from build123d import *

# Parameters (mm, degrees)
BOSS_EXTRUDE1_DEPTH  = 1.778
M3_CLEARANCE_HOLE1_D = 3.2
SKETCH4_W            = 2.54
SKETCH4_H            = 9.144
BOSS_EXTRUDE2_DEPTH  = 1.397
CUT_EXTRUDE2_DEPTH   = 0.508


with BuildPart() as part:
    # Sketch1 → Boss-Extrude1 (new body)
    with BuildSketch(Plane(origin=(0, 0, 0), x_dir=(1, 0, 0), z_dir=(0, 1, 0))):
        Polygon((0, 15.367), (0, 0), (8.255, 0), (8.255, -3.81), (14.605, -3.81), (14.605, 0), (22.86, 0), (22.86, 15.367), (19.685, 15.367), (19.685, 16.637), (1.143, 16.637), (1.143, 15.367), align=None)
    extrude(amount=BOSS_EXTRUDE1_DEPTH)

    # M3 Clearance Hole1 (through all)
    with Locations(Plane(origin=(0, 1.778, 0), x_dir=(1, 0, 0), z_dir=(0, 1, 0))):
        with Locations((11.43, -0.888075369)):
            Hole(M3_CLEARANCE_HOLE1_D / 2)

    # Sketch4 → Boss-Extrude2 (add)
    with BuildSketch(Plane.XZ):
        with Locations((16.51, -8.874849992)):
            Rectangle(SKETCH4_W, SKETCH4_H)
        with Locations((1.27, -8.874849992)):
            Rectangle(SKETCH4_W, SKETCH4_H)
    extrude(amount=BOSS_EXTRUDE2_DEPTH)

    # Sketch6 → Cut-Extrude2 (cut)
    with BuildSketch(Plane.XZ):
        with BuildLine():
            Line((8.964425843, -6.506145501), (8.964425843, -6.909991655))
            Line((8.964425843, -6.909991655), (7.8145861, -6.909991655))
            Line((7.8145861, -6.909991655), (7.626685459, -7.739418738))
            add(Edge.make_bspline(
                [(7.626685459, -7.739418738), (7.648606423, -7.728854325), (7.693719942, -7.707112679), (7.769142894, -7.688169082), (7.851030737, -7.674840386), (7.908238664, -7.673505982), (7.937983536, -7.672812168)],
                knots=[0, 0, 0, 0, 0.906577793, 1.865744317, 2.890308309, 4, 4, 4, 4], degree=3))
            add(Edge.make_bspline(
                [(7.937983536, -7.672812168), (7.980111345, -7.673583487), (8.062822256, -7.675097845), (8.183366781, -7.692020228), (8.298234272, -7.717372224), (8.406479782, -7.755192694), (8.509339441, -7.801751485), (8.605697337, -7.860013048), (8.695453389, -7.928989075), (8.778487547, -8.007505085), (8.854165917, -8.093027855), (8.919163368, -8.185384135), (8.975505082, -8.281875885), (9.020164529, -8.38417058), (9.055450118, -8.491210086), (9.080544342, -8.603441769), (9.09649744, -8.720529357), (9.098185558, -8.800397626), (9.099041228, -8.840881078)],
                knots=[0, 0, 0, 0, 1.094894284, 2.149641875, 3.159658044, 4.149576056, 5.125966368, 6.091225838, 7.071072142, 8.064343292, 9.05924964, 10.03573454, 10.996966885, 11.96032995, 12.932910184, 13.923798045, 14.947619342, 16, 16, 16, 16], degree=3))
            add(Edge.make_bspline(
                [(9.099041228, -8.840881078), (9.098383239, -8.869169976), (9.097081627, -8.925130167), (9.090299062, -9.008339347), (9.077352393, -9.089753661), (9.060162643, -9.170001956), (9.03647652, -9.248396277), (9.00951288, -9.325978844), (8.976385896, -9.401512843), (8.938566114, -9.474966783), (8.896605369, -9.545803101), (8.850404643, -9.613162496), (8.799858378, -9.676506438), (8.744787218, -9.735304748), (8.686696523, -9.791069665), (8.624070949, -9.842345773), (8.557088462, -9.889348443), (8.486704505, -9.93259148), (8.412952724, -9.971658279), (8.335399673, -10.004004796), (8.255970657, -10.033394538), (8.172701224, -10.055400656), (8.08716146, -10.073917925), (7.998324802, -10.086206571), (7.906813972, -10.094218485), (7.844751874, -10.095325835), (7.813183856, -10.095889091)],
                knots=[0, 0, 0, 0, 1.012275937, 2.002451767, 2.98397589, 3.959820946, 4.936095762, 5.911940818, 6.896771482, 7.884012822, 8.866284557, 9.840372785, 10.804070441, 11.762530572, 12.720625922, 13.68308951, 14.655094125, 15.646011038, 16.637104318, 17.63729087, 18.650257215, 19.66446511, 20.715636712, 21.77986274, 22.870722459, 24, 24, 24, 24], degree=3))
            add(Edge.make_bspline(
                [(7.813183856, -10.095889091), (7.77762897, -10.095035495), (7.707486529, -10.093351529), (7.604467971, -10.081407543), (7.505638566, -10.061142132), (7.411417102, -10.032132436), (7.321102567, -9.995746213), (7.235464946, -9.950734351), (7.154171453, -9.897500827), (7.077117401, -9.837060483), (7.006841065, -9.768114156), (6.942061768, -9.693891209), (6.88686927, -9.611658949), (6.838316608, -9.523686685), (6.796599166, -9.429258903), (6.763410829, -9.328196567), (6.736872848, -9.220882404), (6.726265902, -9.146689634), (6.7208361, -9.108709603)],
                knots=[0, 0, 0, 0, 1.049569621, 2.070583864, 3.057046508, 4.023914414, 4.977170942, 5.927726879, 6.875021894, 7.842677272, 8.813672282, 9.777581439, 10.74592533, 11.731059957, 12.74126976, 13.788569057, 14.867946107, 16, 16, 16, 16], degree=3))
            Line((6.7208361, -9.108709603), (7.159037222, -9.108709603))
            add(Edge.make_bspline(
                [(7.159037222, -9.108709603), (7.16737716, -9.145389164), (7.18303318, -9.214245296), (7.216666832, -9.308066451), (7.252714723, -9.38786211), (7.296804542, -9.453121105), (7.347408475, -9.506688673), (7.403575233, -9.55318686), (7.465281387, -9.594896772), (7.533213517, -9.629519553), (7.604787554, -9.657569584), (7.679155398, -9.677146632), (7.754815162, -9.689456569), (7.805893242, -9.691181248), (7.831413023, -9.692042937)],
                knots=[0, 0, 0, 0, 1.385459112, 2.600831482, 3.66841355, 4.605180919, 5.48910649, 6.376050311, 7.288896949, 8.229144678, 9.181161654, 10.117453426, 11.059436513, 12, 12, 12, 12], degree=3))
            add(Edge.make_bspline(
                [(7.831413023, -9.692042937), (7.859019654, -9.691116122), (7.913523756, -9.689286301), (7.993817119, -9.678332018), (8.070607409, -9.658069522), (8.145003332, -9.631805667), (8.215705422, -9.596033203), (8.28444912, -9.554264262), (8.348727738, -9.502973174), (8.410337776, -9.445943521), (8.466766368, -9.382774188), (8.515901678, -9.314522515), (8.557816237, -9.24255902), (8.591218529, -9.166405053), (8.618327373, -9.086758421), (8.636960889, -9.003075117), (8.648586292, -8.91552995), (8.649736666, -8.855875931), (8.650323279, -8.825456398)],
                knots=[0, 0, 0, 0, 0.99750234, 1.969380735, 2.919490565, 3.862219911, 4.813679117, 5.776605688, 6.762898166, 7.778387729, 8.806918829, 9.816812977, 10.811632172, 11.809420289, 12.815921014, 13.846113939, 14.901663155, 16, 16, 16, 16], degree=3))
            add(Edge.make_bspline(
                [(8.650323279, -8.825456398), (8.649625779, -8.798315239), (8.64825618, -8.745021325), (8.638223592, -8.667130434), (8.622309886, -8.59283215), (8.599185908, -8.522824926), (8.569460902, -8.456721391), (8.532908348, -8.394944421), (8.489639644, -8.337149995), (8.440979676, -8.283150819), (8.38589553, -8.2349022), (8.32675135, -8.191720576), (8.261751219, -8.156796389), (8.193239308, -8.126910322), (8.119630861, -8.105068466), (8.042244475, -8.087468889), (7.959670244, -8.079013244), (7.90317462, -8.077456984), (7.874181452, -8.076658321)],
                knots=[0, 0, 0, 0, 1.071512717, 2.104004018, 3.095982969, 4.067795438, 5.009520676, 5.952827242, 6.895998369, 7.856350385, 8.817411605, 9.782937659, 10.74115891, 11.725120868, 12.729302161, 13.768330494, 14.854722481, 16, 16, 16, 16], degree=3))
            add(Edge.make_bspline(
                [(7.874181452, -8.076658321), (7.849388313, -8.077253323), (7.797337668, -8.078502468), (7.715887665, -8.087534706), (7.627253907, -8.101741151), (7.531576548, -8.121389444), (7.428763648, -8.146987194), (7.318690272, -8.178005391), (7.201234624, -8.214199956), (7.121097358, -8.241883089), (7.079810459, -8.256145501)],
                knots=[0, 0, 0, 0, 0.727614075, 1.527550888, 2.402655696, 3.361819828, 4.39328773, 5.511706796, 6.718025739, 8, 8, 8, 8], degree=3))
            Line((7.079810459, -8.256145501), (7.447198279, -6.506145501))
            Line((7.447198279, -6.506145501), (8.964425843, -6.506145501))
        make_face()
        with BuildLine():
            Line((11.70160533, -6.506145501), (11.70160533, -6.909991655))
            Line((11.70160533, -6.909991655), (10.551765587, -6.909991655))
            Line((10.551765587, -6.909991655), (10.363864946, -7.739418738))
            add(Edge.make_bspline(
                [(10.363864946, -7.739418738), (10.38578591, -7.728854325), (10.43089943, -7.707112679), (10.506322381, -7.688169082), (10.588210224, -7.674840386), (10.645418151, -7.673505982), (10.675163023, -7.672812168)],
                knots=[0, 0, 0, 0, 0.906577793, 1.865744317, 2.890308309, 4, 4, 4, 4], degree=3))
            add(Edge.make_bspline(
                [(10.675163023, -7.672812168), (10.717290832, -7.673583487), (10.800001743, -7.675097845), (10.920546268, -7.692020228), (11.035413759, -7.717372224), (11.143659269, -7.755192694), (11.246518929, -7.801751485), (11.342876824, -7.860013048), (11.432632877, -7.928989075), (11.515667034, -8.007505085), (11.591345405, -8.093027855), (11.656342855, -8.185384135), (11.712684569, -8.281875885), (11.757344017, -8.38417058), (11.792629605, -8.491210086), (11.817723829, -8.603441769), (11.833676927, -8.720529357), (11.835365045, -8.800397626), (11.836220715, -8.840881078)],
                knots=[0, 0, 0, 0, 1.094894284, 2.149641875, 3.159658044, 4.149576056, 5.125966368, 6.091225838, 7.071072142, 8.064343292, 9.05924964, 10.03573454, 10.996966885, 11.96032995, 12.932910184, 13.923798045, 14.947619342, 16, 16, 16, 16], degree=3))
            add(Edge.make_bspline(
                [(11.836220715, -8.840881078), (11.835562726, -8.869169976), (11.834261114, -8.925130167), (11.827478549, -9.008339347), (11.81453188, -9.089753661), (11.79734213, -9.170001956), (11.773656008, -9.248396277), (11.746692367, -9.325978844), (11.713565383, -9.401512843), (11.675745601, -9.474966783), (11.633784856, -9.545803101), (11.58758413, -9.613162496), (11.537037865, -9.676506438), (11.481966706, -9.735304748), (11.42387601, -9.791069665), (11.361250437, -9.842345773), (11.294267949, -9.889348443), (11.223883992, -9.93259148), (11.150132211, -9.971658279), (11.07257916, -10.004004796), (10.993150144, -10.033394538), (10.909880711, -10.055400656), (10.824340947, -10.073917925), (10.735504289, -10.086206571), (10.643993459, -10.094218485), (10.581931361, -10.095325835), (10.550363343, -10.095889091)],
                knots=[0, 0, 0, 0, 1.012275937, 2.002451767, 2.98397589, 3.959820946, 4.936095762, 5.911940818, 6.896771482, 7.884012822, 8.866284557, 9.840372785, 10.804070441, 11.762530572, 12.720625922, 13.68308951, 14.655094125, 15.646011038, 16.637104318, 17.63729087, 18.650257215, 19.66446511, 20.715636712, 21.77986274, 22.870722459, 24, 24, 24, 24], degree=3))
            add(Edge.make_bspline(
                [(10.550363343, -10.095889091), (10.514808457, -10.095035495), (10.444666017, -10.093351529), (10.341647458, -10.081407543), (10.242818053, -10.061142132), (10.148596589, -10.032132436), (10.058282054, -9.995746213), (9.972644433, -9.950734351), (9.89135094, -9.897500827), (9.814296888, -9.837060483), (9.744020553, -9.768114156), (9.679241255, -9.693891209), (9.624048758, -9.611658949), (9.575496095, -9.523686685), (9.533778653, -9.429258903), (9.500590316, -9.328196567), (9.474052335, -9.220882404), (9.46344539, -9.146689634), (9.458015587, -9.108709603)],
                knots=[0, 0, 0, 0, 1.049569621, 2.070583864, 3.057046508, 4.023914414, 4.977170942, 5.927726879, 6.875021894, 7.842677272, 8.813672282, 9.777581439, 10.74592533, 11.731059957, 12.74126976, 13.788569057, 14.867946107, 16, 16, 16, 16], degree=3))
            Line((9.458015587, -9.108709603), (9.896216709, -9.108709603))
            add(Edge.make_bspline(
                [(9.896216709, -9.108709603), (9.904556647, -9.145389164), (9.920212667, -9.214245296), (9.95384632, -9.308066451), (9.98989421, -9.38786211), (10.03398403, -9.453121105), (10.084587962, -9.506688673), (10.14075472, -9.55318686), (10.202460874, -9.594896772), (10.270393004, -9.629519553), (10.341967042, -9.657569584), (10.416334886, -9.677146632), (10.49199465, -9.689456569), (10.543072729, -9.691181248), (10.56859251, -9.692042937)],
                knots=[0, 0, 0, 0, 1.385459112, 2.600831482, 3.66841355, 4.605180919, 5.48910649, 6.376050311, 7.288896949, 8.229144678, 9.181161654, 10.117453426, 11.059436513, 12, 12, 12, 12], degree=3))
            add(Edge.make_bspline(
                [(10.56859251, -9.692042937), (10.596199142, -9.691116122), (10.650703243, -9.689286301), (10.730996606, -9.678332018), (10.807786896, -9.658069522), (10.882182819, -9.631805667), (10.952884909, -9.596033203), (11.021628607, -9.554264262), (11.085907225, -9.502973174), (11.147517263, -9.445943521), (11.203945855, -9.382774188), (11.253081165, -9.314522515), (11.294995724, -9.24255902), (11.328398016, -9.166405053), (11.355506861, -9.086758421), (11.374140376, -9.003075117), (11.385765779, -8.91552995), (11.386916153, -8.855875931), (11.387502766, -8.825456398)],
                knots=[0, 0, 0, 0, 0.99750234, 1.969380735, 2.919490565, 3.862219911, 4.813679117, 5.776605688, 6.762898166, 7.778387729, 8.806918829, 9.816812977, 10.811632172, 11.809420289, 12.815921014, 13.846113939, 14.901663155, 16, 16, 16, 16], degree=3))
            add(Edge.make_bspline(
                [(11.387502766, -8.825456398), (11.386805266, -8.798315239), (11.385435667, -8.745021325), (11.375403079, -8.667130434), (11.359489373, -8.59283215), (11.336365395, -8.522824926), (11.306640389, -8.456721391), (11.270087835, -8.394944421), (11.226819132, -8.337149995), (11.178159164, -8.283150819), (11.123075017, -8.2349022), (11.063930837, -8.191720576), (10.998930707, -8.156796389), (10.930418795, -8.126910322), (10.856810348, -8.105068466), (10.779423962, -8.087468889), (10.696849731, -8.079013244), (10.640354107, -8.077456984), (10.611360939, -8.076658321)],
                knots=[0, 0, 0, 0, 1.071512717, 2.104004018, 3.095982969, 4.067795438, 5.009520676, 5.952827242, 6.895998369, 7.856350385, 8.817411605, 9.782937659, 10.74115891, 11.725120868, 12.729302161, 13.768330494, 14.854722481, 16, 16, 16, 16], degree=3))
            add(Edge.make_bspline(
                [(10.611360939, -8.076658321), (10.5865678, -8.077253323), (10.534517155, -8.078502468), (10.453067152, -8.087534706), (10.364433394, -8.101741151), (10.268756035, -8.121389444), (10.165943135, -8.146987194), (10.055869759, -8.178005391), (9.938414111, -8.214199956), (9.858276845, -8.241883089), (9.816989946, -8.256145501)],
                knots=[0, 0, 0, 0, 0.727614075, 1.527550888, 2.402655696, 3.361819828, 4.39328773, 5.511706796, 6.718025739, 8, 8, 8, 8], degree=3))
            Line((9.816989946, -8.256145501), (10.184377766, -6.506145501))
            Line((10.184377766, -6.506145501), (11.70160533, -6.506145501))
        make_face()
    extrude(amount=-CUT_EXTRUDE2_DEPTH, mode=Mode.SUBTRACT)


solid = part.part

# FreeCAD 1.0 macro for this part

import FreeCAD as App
import Part
import Sketcher
Q = App.Units.Quantity


def add_polygon(sketch, points):
    """Adds a closed chain of lines whose ends are joined by coincident constraints."""
    first, n = sketch.GeometryCount, len(points)
    for a, b in zip(points, points[1:] + points[:1]):
        sketch.addGeometry(Part.LineSegment(App.Vector(*a, 0), App.Vector(*b, 0)), False)
    for i in range(n):
        sketch.addConstraint(Sketcher.Constraint("Coincident", first + i, 2, first + (i + 1) % n, 1))

doc = App.newDocument("Part")
body = doc.addObject("PartDesign::Body", "Body")

sketch1 = body.newObject("Sketcher::SketchObject", "Sketch")
sketch1.AttachmentSupport = (doc.getObject("XZ_Plane"), [""])
sketch1.MapMode = "FlatFace"
add_polygon(sketch1, [(0, -15.4), (0, 0), (8.3, 0), (8.3, 3.8), (14.6, 3.8), (14.6, 0), (22.9, 0), (22.9, -15.4), (19.7, -15.4), (19.7, -16.6), (1.1, -16.6), (1.1, -15.4)])
sketch1.addConstraint([
    Sketcher.Constraint("Vertical", 0),
    Sketcher.Constraint("Horizontal", 1),
    Sketcher.Constraint("Vertical", 2),
    Sketcher.Constraint("Horizontal", 3),
    Sketcher.Constraint("Vertical", 4),
    Sketcher.Constraint("Horizontal", 5),
    Sketcher.Constraint("Vertical", 6),
    Sketcher.Constraint("Horizontal", 7),
    Sketcher.Constraint("Vertical", 8),
    Sketcher.Constraint("Horizontal", 9),
    Sketcher.Constraint("Vertical", 10),
    Sketcher.Constraint("Horizontal", 11),
    Sketcher.Constraint("Coincident", 0, 2, -1, 1),
    Sketcher.Constraint("PointOnObject", 4, 2, -1),
    Sketcher.Constraint("Horizontal", 7, 2, 10, 2),
    Sketcher.Constraint("Equal", 1, 5),
    Sketcher.Constraint("DistanceX", 3, 1, 3, 2, Q("0.25 in")),
    Sketcher.Constraint("DistanceX", 9, 2, 9, 1, Q("0.73 in")),
    Sketcher.Constraint("DistanceY", 2, 1, 2, 2, Q("0.15 in")),
    Sketcher.Constraint("DistanceY", 8, 2, 8, 1, Q("0.05 in")),
    Sketcher.Constraint("DistanceX", -1, 1, 5, 2, Q("0.9 in")),
    Sketcher.Constraint("DistanceX", 4, 2, 7, 2, Q("0.2 in")),
    Sketcher.Constraint("DistanceY", 0, 1, 0, 2, Q("0.605 in")),
])
pad1 = body.newObject("PartDesign::Pad", "Pad")
pad1.Profile = sketch1
pad1.Length = Q("0.07 in")
pad1.Reversed = True

sketch2 = body.newObject("Sketcher::SketchObject", "Sketch001")
sketch2.AttachmentSupport = (doc.getObject("XZ_Plane"), [""])
sketch2.MapMode = "FlatFace"
sketch2.AttachmentOffset = App.Placement(App.Vector(0, 0, -0.07 * 25.4), App.Rotation())
sketch2.addGeometry(Part.Circle(App.Vector(11.4, 0.9, 0), App.Vector(0, 0, 1), 1.6), False)
sketch2.addConstraint([
    Sketcher.Constraint("Diameter", 0, 3.2),
    Sketcher.Constraint("DistanceX", -1, 1, 0, 3, Q("0.45 in")),
    Sketcher.Constraint("DistanceY", -1, 1, 0, 3, 0.888075),
])
doc.recompute()
hole = body.newObject("PartDesign::Hole", "Hole")
hole.Profile = sketch2
hole.ThreadType = "None"
hole.Diameter = 3.2
hole.DepthType = "ThroughAll"
hole.Reversed = True

sketch3 = body.newObject("Sketcher::SketchObject", "Sketch002")
sketch3.AttachmentSupport = (doc.getObject("XZ_Plane"), [""])
sketch3.MapMode = "FlatFace"
add_polygon(sketch3, [(15.2, -4.3), (15.2, -13.4), (17.8, -13.4), (17.8, -4.3)])
add_polygon(sketch3, [(0, -4.3), (0, -13.4), (2.5, -13.4), (2.5, -4.3)])
sketch3.addConstraint([
    Sketcher.Constraint("Vertical", 0),
    Sketcher.Constraint("Horizontal", 1),
    Sketcher.Constraint("Vertical", 2),
    Sketcher.Constraint("Horizontal", 3),
    Sketcher.Constraint("Vertical", 4),
    Sketcher.Constraint("Horizontal", 5),
    Sketcher.Constraint("Vertical", 6),
    Sketcher.Constraint("Horizontal", 7),
    Sketcher.Constraint("PointOnObject", 4, 2, -2),
    Sketcher.Constraint("Horizontal", 1, 2, 4, 2),
    Sketcher.Constraint("Horizontal", 3, 2, 6, 2),
    Sketcher.Constraint("Equal", 3, 5),
    Sketcher.Constraint("DistanceX", 1, 1, 1, 2, Q("0.1 in")),
    Sketcher.Constraint("DistanceY", 0, 2, 0, 1, Q("0.36 in")),
    Sketcher.Constraint("DistanceX", -1, 1, 0, 2, Q("0.6 in")),
    Sketcher.Constraint("DistanceY", 0, 2, -1, 1, 13.44685),
])
pad2 = body.newObject("PartDesign::Pad", "Pad001")
pad2.Profile = sketch3
pad2.Length = Q("0.055 in")

sketch4 = body.newObject("Sketcher::SketchObject", "Sketch003")
sketch4.AttachmentSupport = (doc.getObject("XZ_Plane"), [""])
sketch4.MapMode = "FlatFace"
sketch4.addGeometry([
    Part.LineSegment(App.Vector(8.964426, -6.909992, 0), App.Vector(8.964426, -6.506146, 0)),
    Part.LineSegment(App.Vector(8.964426, -6.506146, 0), App.Vector(7.447198, -6.506146, 0)),
    Part.LineSegment(App.Vector(7.447198, -6.506146, 0), App.Vector(7.07981, -8.256146, 0)),
    Part.BSplineCurve([App.Vector(7.874181, -8.076658, 0), App.Vector(7.849388, -8.077253, 0), App.Vector(7.797338, -8.078502, 0), App.Vector(7.715888, -8.087535, 0), App.Vector(7.627254, -8.101741, 0), App.Vector(7.531577, -8.121389, 0), App.Vector(7.428764, -8.146987, 0), App.Vector(7.31869, -8.178005, 0), App.Vector(7.201235, -8.2142, 0), App.Vector(7.121097, -8.241883, 0), App.Vector(7.07981, -8.256146, 0)], [4, 1, 1, 1, 1, 1, 1, 1, 4], [0, 0.727614075, 1.527550888, 2.402655696, 3.361819828, 4.39328773, 5.511706796, 6.718025739, 8], False, 3, [1, 1, 1, 1, 1, 1, 1, 1, 1, 1, 1], False),
    Part.BSplineCurve([App.Vector(8.650323, -8.825456, 0), App.Vector(8.649626, -8.798315, 0), App.Vector(8.648256, -8.745021, 0), App.Vector(8.638224, -8.66713, 0), App.Vector(8.62231, -8.592832, 0), App.Vector(8.599186, -8.522825, 0), App.Vector(8.569461, -8.456721, 0), App.Vector(8.532908, -8.394944, 0), App.Vector(8.48964, -8.33715, 0), App.Vector(8.44098, -8.283151, 0), App.Vector(8.385896, -8.234902, 0), App.Vector(8.326751, -8.191721, 0), App.Vector(8.261751, -8.156796, 0), App.Vector(8.193239, -8.12691, 0), App.Vector(8.119631, -8.105068, 0), App.Vector(8.042244, -8.087469, 0), App.Vector(7.95967, -8.079013, 0), App.Vector(7.903175, -8.077457, 0), App.Vector(7.874181, -8.076658, 0)], [4, 1, 1, 1, 1, 1, 1, 1, 1, 1, 1, 1, 1, 1, 1, 1, 4], [0, 1.071512717, 2.104004018, 3.095982969, 4.067795438, 5.009520676, 5.952827242, 6.895998369, 7.856350385, 8.817411605, 9.782937659, 10.74115891, 11.725120868, 12.729302161, 13.768330494, 14.854722481, 16], False, 3, [1, 1, 1, 1, 1, 1, 1, 1, 1, 1, 1, 1, 1, 1, 1, 1, 1, 1, 1], False),
    Part.BSplineCurve([App.Vector(7.831413, -9.692043, 0), App.Vector(7.85902, -9.691116, 0), App.Vector(7.913524, -9.689286, 0), App.Vector(7.993817, -9.678332, 0), App.Vector(8.070607, -9.65807, 0), App.Vector(8.145003, -9.631806, 0), App.Vector(8.215705, -9.596033, 0), App.Vector(8.284449, -9.554264, 0), App.Vector(8.348728, -9.502973, 0), App.Vector(8.410338, -9.445944, 0), App.Vector(8.466766, -9.382774, 0), App.Vector(8.515902, -9.314523, 0), App.Vector(8.557816, -9.242559, 0), App.Vector(8.591219, -9.166405, 0), App.Vector(8.618327, -9.086758, 0), App.Vector(8.636961, -9.003075, 0), App.Vector(8.648586, -8.91553, 0), App.Vector(8.649737, -8.855876, 0), App.Vector(8.650323, -8.825456, 0)], [4, 1, 1, 1, 1, 1, 1, 1, 1, 1, 1, 1, 1, 1, 1, 1, 4], [0, 0.99750234, 1.969380735, 2.919490565, 3.862219911, 4.813679117, 5.776605688, 6.762898166, 7.778387729, 8.806918829, 9.816812977, 10.811632172, 11.809420289, 12.815921014, 13.846113939, 14.901663155, 16], False, 3, [1, 1, 1, 1, 1, 1, 1, 1, 1, 1, 1, 1, 1, 1, 1, 1, 1, 1, 1], False),
    Part.BSplineCurve([App.Vector(7.159037, -9.10871, 0), App.Vector(7.167377, -9.145389, 0), App.Vector(7.183033, -9.214245, 0), App.Vector(7.216667, -9.308066, 0), App.Vector(7.252715, -9.387862, 0), App.Vector(7.296805, -9.453121, 0), App.Vector(7.347408, -9.506689, 0), App.Vector(7.403575, -9.553187, 0), App.Vector(7.465281, -9.594897, 0), App.Vector(7.533214, -9.62952, 0), App.Vector(7.604788, -9.65757, 0), App.Vector(7.679155, -9.677147, 0), App.Vector(7.754815, -9.689457, 0), App.Vector(7.805893, -9.691181, 0), App.Vector(7.831413, -9.692043, 0)], [4, 1, 1, 1, 1, 1, 1, 1, 1, 1, 1, 1, 4], [0, 1.385459112, 2.600831482, 3.66841355, 4.605180919, 5.48910649, 6.376050311, 7.288896949, 8.229144678, 9.181161654, 10.117453426, 11.059436513, 12], False, 3, [1, 1, 1, 1, 1, 1, 1, 1, 1, 1, 1, 1, 1, 1, 1], False),
    Part.LineSegment(App.Vector(7.159037, -9.10871, 0), App.Vector(6.720836, -9.10871, 0)),
    Part.BSplineCurve([App.Vector(7.813184, -10.095889, 0), App.Vector(7.777629, -10.095035, 0), App.Vector(7.707487, -10.093352, 0), App.Vector(7.604468, -10.081408, 0), App.Vector(7.505639, -10.061142, 0), App.Vector(7.411417, -10.032132, 0), App.Vector(7.321103, -9.995746, 0), App.Vector(7.235465, -9.950734, 0), App.Vector(7.154171, -9.897501, 0), App.Vector(7.077117, -9.83706, 0), App.Vector(7.006841, -9.768114, 0), App.Vector(6.942062, -9.693891, 0), App.Vector(6.886869, -9.611659, 0), App.Vector(6.838317, -9.523687, 0), App.Vector(6.796599, -9.429259, 0), App.Vector(6.763411, -9.328197, 0), App.Vector(6.736873, -9.220882, 0), App.Vector(6.726266, -9.14669, 0), App.Vector(6.720836, -9.10871, 0)], [4, 1, 1, 1, 1, 1, 1, 1, 1, 1, 1, 1, 1, 1, 1, 1, 4], [0, 1.049569621, 2.070583864, 3.057046508, 4.023914414, 4.977170942, 5.927726879, 6.875021894, 7.842677272, 8.813672282, 9.777581439, 10.74592533, 11.731059957, 12.74126976, 13.788569057, 14.867946107, 16], False, 3, [1, 1, 1, 1, 1, 1, 1, 1, 1, 1, 1, 1, 1, 1, 1, 1, 1, 1, 1], False),
    Part.BSplineCurve([App.Vector(9.099041, -8.840881, 0), App.Vector(9.098383, -8.86917, 0), App.Vector(9.097082, -8.92513, 0), App.Vector(9.090299, -9.008339, 0), App.Vector(9.077352, -9.089754, 0), App.Vector(9.060163, -9.170002, 0), App.Vector(9.036477, -9.248396, 0), App.Vector(9.009513, -9.325979, 0), App.Vector(8.976386, -9.401513, 0), App.Vector(8.938566, -9.474967, 0), App.Vector(8.896605, -9.545803, 0), App.Vector(8.850405, -9.613162, 0), App.Vector(8.799858, -9.676506, 0), App.Vector(8.744787, -9.735305, 0), App.Vector(8.686697, -9.79107, 0), App.Vector(8.624071, -9.842346, 0), App.Vector(8.557088, -9.889348, 0), App.Vector(8.486705, -9.932591, 0), App.Vector(8.412953, -9.971658, 0), App.Vector(8.3354, -10.004005, 0), App.Vector(8.255971, -10.033395, 0), App.Vector(8.172701, -10.055401, 0), App.Vector(8.087161, -10.073918, 0), App.Vector(7.998325, -10.086207, 0), App.Vector(7.906814, -10.094218, 0), App.Vector(7.844752, -10.095326, 0), App.Vector(7.813184, -10.095889, 0)], [4, 1, 1, 1, 1, 1, 1, 1, 1, 1, 1, 1, 1, 1, 1, 1, 1, 1, 1, 1, 1, 1, 1, 1, 4], [0, 1.012275937, 2.002451767, 2.98397589, 3.959820946, 4.936095762, 5.911940818, 6.896771482, 7.884012822, 8.866284557, 9.840372785, 10.804070441, 11.762530572, 12.720625922, 13.68308951, 14.655094125, 15.646011038, 16.637104318, 17.63729087, 18.650257215, 19.66446511, 20.715636712, 21.77986274, 22.870722459, 24], False, 3, [1, 1, 1, 1, 1, 1, 1, 1, 1, 1, 1, 1, 1, 1, 1, 1, 1, 1, 1, 1, 1, 1, 1, 1, 1, 1, 1], False),
    Part.BSplineCurve([App.Vector(7.937984, -7.672812, 0), App.Vector(7.980111, -7.673583, 0), App.Vector(8.062822, -7.675098, 0), App.Vector(8.183367, -7.69202, 0), App.Vector(8.298234, -7.717372, 0), App.Vector(8.40648, -7.755193, 0), App.Vector(8.509339, -7.801751, 0), App.Vector(8.605697, -7.860013, 0), App.Vector(8.695453, -7.928989, 0), App.Vector(8.778488, -8.007505, 0), App.Vector(8.854166, -8.093028, 0), App.Vector(8.919163, -8.185384, 0), App.Vector(8.975505, -8.281876, 0), App.Vector(9.020165, -8.384171, 0), App.Vector(9.05545, -8.49121, 0), App.Vector(9.080544, -8.603442, 0), App.Vector(9.096497, -8.720529, 0), App.Vector(9.098186, -8.800398, 0), App.Vector(9.099041, -8.840881, 0)], [4, 1, 1, 1, 1, 1, 1, 1, 1, 1, 1, 1, 1, 1, 1, 1, 4], [0, 1.094894284, 2.149641875, 3.159658044, 4.149576056, 5.125966368, 6.091225838, 7.071072142, 8.064343292, 9.05924964, 10.03573454, 10.996966885, 11.96032995, 12.932910184, 13.923798045, 14.947619342, 16], False, 3, [1, 1, 1, 1, 1, 1, 1, 1, 1, 1, 1, 1, 1, 1, 1, 1, 1, 1, 1], False),
    Part.BSplineCurve([App.Vector(7.626685, -7.739419, 0), App.Vector(7.648606, -7.728854, 0), App.Vector(7.69372, -7.707113, 0), App.Vector(7.769143, -7.688169, 0), App.Vector(7.851031, -7.67484, 0), App.Vector(7.908239, -7.673506, 0), App.Vector(7.937984, -7.672812, 0)], [4, 1, 1, 1, 4], [0, 0.906577793, 1.865744317, 2.890308309, 4], False, 3, [1, 1, 1, 1, 1, 1, 1], False),
    Part.LineSegment(App.Vector(7.626685, -7.739419, 0), App.Vector(7.814586, -6.909992, 0)),
    Part.LineSegment(App.Vector(7.814586, -6.909992, 0), App.Vector(8.964426, -6.909992, 0)),
    Part.LineSegment(App.Vector(11.701605, -6.909992, 0), App.Vector(11.701605, -6.506146, 0)),
    Part.LineSegment(App.Vector(11.701605, -6.506146, 0), App.Vector(10.184378, -6.506146, 0)),
    Part.LineSegment(App.Vector(10.184378, -6.506146, 0), App.Vector(9.81699, -8.256146, 0)),
    Part.BSplineCurve([App.Vector(10.611361, -8.076658, 0), App.Vector(10.586568, -8.077253, 0), App.Vector(10.534517, -8.078502, 0), App.Vector(10.453067, -8.087535, 0), App.Vector(10.364433, -8.101741, 0), App.Vector(10.268756, -8.121389, 0), App.Vector(10.165943, -8.146987, 0), App.Vector(10.05587, -8.178005, 0), App.Vector(9.938414, -8.2142, 0), App.Vector(9.858277, -8.241883, 0), App.Vector(9.81699, -8.256146, 0)], [4, 1, 1, 1, 1, 1, 1, 1, 4], [0, 0.727614075, 1.527550888, 2.402655696, 3.361819828, 4.39328773, 5.511706796, 6.718025739, 8], False, 3, [1, 1, 1, 1, 1, 1, 1, 1, 1, 1, 1], False),
    Part.BSplineCurve([App.Vector(11.387503, -8.825456, 0), App.Vector(11.386805, -8.798315, 0), App.Vector(11.385436, -8.745021, 0), App.Vector(11.375403, -8.66713, 0), App.Vector(11.359489, -8.592832, 0), App.Vector(11.336365, -8.522825, 0), App.Vector(11.30664, -8.456721, 0), App.Vector(11.270088, -8.394944, 0), App.Vector(11.226819, -8.33715, 0), App.Vector(11.178159, -8.283151, 0), App.Vector(11.123075, -8.234902, 0), App.Vector(11.063931, -8.191721, 0), App.Vector(10.998931, -8.156796, 0), App.Vector(10.930419, -8.12691, 0), App.Vector(10.85681, -8.105068, 0), App.Vector(10.779424, -8.087469, 0), App.Vector(10.69685, -8.079013, 0), App.Vector(10.640354, -8.077457, 0), App.Vector(10.611361, -8.076658, 0)], [4, 1, 1, 1, 1, 1, 1, 1, 1, 1, 1, 1, 1, 1, 1, 1, 4], [0, 1.071512717, 2.104004018, 3.095982969, 4.067795438, 5.009520676, 5.952827242, 6.895998369, 7.856350385, 8.817411605, 9.782937659, 10.74115891, 11.725120868, 12.729302161, 13.768330494, 14.854722481, 16], False, 3, [1, 1, 1, 1, 1, 1, 1, 1, 1, 1, 1, 1, 1, 1, 1, 1, 1, 1, 1], False),
    Part.BSplineCurve([App.Vector(10.568593, -9.692043, 0), App.Vector(10.596199, -9.691116, 0), App.Vector(10.650703, -9.689286, 0), App.Vector(10.730997, -9.678332, 0), App.Vector(10.807787, -9.65807, 0), App.Vector(10.882183, -9.631806, 0), App.Vector(10.952885, -9.596033, 0), App.Vector(11.021629, -9.554264, 0), App.Vector(11.085907, -9.502973, 0), App.Vector(11.147517, -9.445944, 0), App.Vector(11.203946, -9.382774, 0), App.Vector(11.253081, -9.314523, 0), App.Vector(11.294996, -9.242559, 0), App.Vector(11.328398, -9.166405, 0), App.Vector(11.355507, -9.086758, 0), App.Vector(11.37414, -9.003075, 0), App.Vector(11.385766, -8.91553, 0), App.Vector(11.386916, -8.855876, 0), App.Vector(11.387503, -8.825456, 0)], [4, 1, 1, 1, 1, 1, 1, 1, 1, 1, 1, 1, 1, 1, 1, 1, 4], [0, 0.99750234, 1.969380735, 2.919490565, 3.862219911, 4.813679117, 5.776605688, 6.762898166, 7.778387729, 8.806918829, 9.816812977, 10.811632172, 11.809420289, 12.815921014, 13.846113939, 14.901663155, 16], False, 3, [1, 1, 1, 1, 1, 1, 1, 1, 1, 1, 1, 1, 1, 1, 1, 1, 1, 1, 1], False),
    Part.BSplineCurve([App.Vector(9.896217, -9.10871, 0), App.Vector(9.904557, -9.145389, 0), App.Vector(9.920213, -9.214245, 0), App.Vector(9.953846, -9.308066, 0), App.Vector(9.989894, -9.387862, 0), App.Vector(10.033984, -9.453121, 0), App.Vector(10.084588, -9.506689, 0), App.Vector(10.140755, -9.553187, 0), App.Vector(10.202461, -9.594897, 0), App.Vector(10.270393, -9.62952, 0), App.Vector(10.341967, -9.65757, 0), App.Vector(10.416335, -9.677147, 0), App.Vector(10.491995, -9.689457, 0), App.Vector(10.543073, -9.691181, 0), App.Vector(10.568593, -9.692043, 0)], [4, 1, 1, 1, 1, 1, 1, 1, 1, 1, 1, 1, 4], [0, 1.385459112, 2.600831482, 3.66841355, 4.605180919, 5.48910649, 6.376050311, 7.288896949, 8.229144678, 9.181161654, 10.117453426, 11.059436513, 12], False, 3, [1, 1, 1, 1, 1, 1, 1, 1, 1, 1, 1, 1, 1, 1, 1], False),
    Part.LineSegment(App.Vector(9.896217, -9.10871, 0), App.Vector(9.458016, -9.10871, 0)),
    Part.BSplineCurve([App.Vector(10.550363, -10.095889, 0), App.Vector(10.514808, -10.095035, 0), App.Vector(10.444666, -10.093352, 0), App.Vector(10.341647, -10.081408, 0), App.Vector(10.242818, -10.061142, 0), App.Vector(10.148597, -10.032132, 0), App.Vector(10.058282, -9.995746, 0), App.Vector(9.972644, -9.950734, 0), App.Vector(9.891351, -9.897501, 0), App.Vector(9.814297, -9.83706, 0), App.Vector(9.744021, -9.768114, 0), App.Vector(9.679241, -9.693891, 0), App.Vector(9.624049, -9.611659, 0), App.Vector(9.575496, -9.523687, 0), App.Vector(9.533779, -9.429259, 0), App.Vector(9.50059, -9.328197, 0), App.Vector(9.474052, -9.220882, 0), App.Vector(9.463445, -9.14669, 0), App.Vector(9.458016, -9.10871, 0)], [4, 1, 1, 1, 1, 1, 1, 1, 1, 1, 1, 1, 1, 1, 1, 1, 4], [0, 1.049569621, 2.070583864, 3.057046508, 4.023914414, 4.977170942, 5.927726879, 6.875021894, 7.842677272, 8.813672282, 9.777581439, 10.74592533, 11.731059957, 12.74126976, 13.788569057, 14.867946107, 16], False, 3, [1, 1, 1, 1, 1, 1, 1, 1, 1, 1, 1, 1, 1, 1, 1, 1, 1, 1, 1], False),
    Part.BSplineCurve([App.Vector(11.836221, -8.840881, 0), App.Vector(11.835563, -8.86917, 0), App.Vector(11.834261, -8.92513, 0), App.Vector(11.827479, -9.008339, 0), App.Vector(11.814532, -9.089754, 0), App.Vector(11.797342, -9.170002, 0), App.Vector(11.773656, -9.248396, 0), App.Vector(11.746692, -9.325979, 0), App.Vector(11.713565, -9.401513, 0), App.Vector(11.675746, -9.474967, 0), App.Vector(11.633785, -9.545803, 0), App.Vector(11.587584, -9.613162, 0), App.Vector(11.537038, -9.676506, 0), App.Vector(11.481967, -9.735305, 0), App.Vector(11.423876, -9.79107, 0), App.Vector(11.36125, -9.842346, 0), App.Vector(11.294268, -9.889348, 0), App.Vector(11.223884, -9.932591, 0), App.Vector(11.150132, -9.971658, 0), App.Vector(11.072579, -10.004005, 0), App.Vector(10.99315, -10.033395, 0), App.Vector(10.909881, -10.055401, 0), App.Vector(10.824341, -10.073918, 0), App.Vector(10.735504, -10.086207, 0), App.Vector(10.643993, -10.094218, 0), App.Vector(10.581931, -10.095326, 0), App.Vector(10.550363, -10.095889, 0)], [4, 1, 1, 1, 1, 1, 1, 1, 1, 1, 1, 1, 1, 1, 1, 1, 1, 1, 1, 1, 1, 1, 1, 1, 4], [0, 1.012275937, 2.002451767, 2.98397589, 3.959820946, 4.936095762, 5.911940818, 6.896771482, 7.884012822, 8.866284557, 9.840372785, 10.804070441, 11.762530572, 12.720625922, 13.68308951, 14.655094125, 15.646011038, 16.637104318, 17.63729087, 18.650257215, 19.66446511, 20.715636712, 21.77986274, 22.870722459, 24], False, 3, [1, 1, 1, 1, 1, 1, 1, 1, 1, 1, 1, 1, 1, 1, 1, 1, 1, 1, 1, 1, 1, 1, 1, 1, 1, 1, 1], False),
    Part.BSplineCurve([App.Vector(10.675163, -7.672812, 0), App.Vector(10.717291, -7.673583, 0), App.Vector(10.800002, -7.675098, 0), App.Vector(10.920546, -7.69202, 0), App.Vector(11.035414, -7.717372, 0), App.Vector(11.143659, -7.755193, 0), App.Vector(11.246519, -7.801751, 0), App.Vector(11.342877, -7.860013, 0), App.Vector(11.432633, -7.928989, 0), App.Vector(11.515667, -8.007505, 0), App.Vector(11.591345, -8.093028, 0), App.Vector(11.656343, -8.185384, 0), App.Vector(11.712685, -8.281876, 0), App.Vector(11.757344, -8.384171, 0), App.Vector(11.79263, -8.49121, 0), App.Vector(11.817724, -8.603442, 0), App.Vector(11.833677, -8.720529, 0), App.Vector(11.835365, -8.800398, 0), App.Vector(11.836221, -8.840881, 0)], [4, 1, 1, 1, 1, 1, 1, 1, 1, 1, 1, 1, 1, 1, 1, 1, 4], [0, 1.094894284, 2.149641875, 3.159658044, 4.149576056, 5.125966368, 6.091225838, 7.071072142, 8.064343292, 9.05924964, 10.03573454, 10.996966885, 11.96032995, 12.932910184, 13.923798045, 14.947619342, 16], False, 3, [1, 1, 1, 1, 1, 1, 1, 1, 1, 1, 1, 1, 1, 1, 1, 1, 1, 1, 1], False),
    Part.BSplineCurve([App.Vector(10.363865, -7.739419, 0), App.Vector(10.385786, -7.728854, 0), App.Vector(10.430899, -7.707113, 0), App.Vector(10.506322, -7.688169, 0), App.Vector(10.58821, -7.67484, 0), App.Vector(10.645418, -7.673506, 0), App.Vector(10.675163, -7.672812, 0)], [4, 1, 1, 1, 4], [0, 0.906577793, 1.865744317, 2.890308309, 4], False, 3, [1, 1, 1, 1, 1, 1, 1], False),
    Part.LineSegment(App.Vector(10.363865, -7.739419, 0), App.Vector(10.551766, -6.909992, 0)),
    Part.LineSegment(App.Vector(10.551766, -6.909992, 0), App.Vector(11.701605, -6.909992, 0)),
], False)
sketch4.addConstraint([
    Sketcher.Constraint("Block", 3),
    Sketcher.Constraint("Block", 4),
    Sketcher.Constraint("Block", 5),
    Sketcher.Constraint("Block", 6),
    Sketcher.Constraint("Block", 8),
    Sketcher.Constraint("Block", 9),
    Sketcher.Constraint("Block", 10),
    Sketcher.Constraint("Block", 11),
    Sketcher.Constraint("Block", 17),
    Sketcher.Constraint("Block", 18),
    Sketcher.Constraint("Block", 19),
    Sketcher.Constraint("Block", 20),
    Sketcher.Constraint("Block", 22),
    Sketcher.Constraint("Block", 23),
    Sketcher.Constraint("Block", 24),
    Sketcher.Constraint("Block", 25),
    Sketcher.Constraint("Coincident", 0, 2, 1, 1),
    Sketcher.Constraint("Coincident", 1, 2, 2, 1),
    Sketcher.Constraint("Coincident", 2, 2, 3, 2),
    Sketcher.Constraint("Coincident", 6, 1, 7, 1),
    Sketcher.Constraint("Coincident", 7, 2, 8, 2),
    Sketcher.Constraint("Coincident", 11, 1, 12, 1),
    Sketcher.Constraint("Coincident", 12, 2, 13, 1),
    Sketcher.Constraint("Coincident", 13, 2, 0, 1),
    Sketcher.Constraint("Coincident", 14, 2, 15, 1),
    Sketcher.Constraint("Coincident", 15, 2, 16, 1),
    Sketcher.Constraint("Coincident", 16, 2, 17, 2),
    Sketcher.Constraint("Coincident", 20, 1, 21, 1),
    Sketcher.Constraint("Coincident", 21, 2, 22, 2),
    Sketcher.Constraint("Coincident", 25, 1, 26, 1),
    Sketcher.Constraint("Coincident", 26, 2, 27, 1),
    Sketcher.Constraint("Coincident", 27, 2, 14, 1),
    Sketcher.Constraint("Vertical", 0),
    Sketcher.Constraint("Horizontal", 1),
    Sketcher.Constraint("Horizontal", 13),
    Sketcher.Constraint("Vertical", 14),
    Sketcher.Constraint("Horizontal", 15),
    Sketcher.Constraint("Horizontal", 27),
    Sketcher.Constraint("Parallel", 2, 16),
    Sketcher.Constraint("Parallel", 12, 26),
    Sketcher.Constraint("Horizontal", 1, 2, 14, 2),
    Sketcher.Constraint("Horizontal", 13, 2, 26, 2),
    Sketcher.Constraint("Equal", 1, 15),
    Sketcher.Constraint("DistanceX", 13, 1, 13, 2, 1.14984),
    Sketcher.Constraint("DistanceX", -1, 1, 1, 2, 7.447198),
    Sketcher.Constraint("DistanceY", 2, 2, 1, 2, 1.75),
    Sketcher.Constraint("DistanceX", 1, 2, 1, 1, 1.517228),
    Sketcher.Constraint("DistanceY", 0, 1, 0, 2, 0.403846),
])
pocket1 = body.newObject("PartDesign::Pocket", "Pocket")
pocket1.Profile = sketch4
pocket1.Length = Q("0.02 in")

doc.recompute()
